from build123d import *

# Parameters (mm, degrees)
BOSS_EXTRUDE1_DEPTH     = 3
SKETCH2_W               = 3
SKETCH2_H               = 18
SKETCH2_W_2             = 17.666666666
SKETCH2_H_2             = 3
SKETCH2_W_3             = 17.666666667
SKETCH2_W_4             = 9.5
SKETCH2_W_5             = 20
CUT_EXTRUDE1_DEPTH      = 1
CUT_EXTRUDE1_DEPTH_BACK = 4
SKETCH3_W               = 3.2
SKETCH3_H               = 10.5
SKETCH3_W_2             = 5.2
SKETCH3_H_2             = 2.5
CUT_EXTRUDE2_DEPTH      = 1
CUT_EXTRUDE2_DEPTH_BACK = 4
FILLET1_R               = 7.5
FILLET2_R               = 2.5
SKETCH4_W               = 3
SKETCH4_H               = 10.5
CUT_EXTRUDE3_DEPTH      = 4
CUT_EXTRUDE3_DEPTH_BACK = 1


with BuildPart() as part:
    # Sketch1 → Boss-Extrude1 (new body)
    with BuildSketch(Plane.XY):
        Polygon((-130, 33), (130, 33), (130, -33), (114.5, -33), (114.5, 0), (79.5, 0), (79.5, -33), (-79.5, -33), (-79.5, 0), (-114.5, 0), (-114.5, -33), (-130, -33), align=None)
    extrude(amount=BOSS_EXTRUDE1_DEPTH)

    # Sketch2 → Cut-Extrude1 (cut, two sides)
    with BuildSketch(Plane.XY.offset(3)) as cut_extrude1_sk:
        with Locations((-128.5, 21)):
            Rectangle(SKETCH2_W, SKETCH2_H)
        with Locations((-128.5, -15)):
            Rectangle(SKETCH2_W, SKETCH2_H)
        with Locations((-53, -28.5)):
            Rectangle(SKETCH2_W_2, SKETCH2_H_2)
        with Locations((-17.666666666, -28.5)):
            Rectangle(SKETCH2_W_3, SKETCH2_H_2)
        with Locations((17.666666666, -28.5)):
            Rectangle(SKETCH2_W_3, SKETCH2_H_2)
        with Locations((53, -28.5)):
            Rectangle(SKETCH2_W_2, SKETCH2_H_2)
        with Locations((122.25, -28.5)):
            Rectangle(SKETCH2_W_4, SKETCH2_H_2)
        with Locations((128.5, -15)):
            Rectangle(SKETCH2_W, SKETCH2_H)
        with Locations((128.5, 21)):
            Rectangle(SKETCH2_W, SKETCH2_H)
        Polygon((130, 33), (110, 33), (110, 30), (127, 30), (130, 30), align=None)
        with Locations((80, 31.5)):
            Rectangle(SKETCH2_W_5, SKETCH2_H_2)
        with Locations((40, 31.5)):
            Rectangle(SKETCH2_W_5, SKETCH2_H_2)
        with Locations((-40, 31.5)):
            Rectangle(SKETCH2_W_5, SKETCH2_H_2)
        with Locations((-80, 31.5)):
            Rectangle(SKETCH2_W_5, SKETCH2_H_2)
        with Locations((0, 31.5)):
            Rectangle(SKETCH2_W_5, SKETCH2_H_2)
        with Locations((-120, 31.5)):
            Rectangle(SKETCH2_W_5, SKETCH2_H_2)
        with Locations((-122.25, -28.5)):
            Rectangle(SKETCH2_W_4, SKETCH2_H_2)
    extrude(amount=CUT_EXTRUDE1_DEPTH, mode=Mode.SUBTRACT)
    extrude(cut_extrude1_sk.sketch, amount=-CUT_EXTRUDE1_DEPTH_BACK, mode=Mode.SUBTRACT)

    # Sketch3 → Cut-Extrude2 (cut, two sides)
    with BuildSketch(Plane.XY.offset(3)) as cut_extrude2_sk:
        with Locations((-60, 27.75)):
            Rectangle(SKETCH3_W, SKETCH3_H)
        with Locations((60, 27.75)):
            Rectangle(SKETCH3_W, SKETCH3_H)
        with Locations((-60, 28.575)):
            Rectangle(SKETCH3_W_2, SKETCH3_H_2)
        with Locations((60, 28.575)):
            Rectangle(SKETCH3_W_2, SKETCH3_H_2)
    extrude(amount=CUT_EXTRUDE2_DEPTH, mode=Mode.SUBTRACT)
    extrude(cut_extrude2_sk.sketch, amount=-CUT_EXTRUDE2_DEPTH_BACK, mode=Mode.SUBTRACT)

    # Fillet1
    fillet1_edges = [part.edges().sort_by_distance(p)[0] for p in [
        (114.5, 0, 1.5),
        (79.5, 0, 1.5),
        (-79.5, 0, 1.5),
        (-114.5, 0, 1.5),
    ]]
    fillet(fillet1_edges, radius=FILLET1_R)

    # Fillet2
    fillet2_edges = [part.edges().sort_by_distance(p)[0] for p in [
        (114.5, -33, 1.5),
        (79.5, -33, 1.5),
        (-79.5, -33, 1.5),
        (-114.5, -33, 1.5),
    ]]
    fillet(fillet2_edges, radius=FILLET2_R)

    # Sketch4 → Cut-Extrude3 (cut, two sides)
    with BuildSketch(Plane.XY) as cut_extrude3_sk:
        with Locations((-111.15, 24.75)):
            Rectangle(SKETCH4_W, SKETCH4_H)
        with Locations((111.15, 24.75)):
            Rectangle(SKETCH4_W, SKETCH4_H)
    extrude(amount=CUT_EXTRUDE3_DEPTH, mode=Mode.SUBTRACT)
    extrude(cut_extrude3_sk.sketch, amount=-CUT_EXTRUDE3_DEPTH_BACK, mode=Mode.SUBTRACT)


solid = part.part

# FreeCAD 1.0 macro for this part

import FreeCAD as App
import Part
import Sketcher
Q = App.Units.Quantity


def edges_at(feature, points):
    """Names of the edges that pass closest to the given points."""
    edges = feature.Shape.Edges
    near = lambda p: min(range(len(edges)), key=lambda i: edges[i].distToShape(Part.Vertex(*p))[0])
    return sorted({f"Edge{near(p) + 1}" for p in points})


def add_polygon(sketch, points):
    """Adds a closed chain of lines whose ends are joined by coincident constraints."""
    first, n = sketch.GeometryCount, len(points)
    for a, b in zip(points, points[1:] + points[:1]):
        sketch.addGeometry(Part.LineSegment(App.Vector(*a, 0), App.Vector(*b, 0)), False)
    for i in range(n):
        sketch.addConstraint(Sketcher.Constraint("Coincident", first + i, 2, first + (i + 1) % n, 1))

doc = App.newDocument("Part")
body = doc.addObject("PartDesign::Body", "Body")

# Sketch on XY plane
sketch1 = doc.addObject("Sketcher::SketchObject", "Sketch")
body.addObject(sketch1)
sketch1.AttachmentSupport = (doc.XY_Plane, [""])
sketch1.MapMode = "FlatFace"
add_polygon(sketch1, [(130, 33), (-130, 33), (-130, -33), (-114, -33), (-114, 0), (-80, 0), (-80, -33), (80, -33), (80, 0), (114, 0), (114, -33), (130, -33)])  # lines 0-11
sketch1.addConstraint([
    Sketcher.Constraint("Horizontal", 0),
    Sketcher.Constraint("Vertical", 1),
    Sketcher.Constraint("Horizontal", 2),
    Sketcher.Constraint("Vertical", 3),
    Sketcher.Constraint("Horizontal", 4),
    Sketcher.Constraint("Vertical", 5),
    Sketcher.Constraint("Horizontal", 6),
    Sketcher.Constraint("Vertical", 7),
    Sketcher.Constraint("Horizontal", 8),
    Sketcher.Constraint("Vertical", 9),
    Sketcher.Constraint("Horizontal", 10),
    Sketcher.Constraint("Vertical", 11),
    Sketcher.Constraint("Symmetric", 4, 2, 7, 2, -1, 1),
    Sketcher.Constraint("Symmetric", 0, 2, 10, 2, -1, 1),
    Sketcher.Constraint("Symmetric", 3, 2, 8, 2, -2),
    Sketcher.Constraint("Horizontal", 2, 2, 5, 2),
    Sketcher.Constraint("Horizontal", 6, 2, 9, 2),
    Sketcher.Constraint("DistanceX", 0, 2, 0, 1, Q("260 mm")),
    Sketcher.Constraint("DistanceX", 4, 1, 4, 2, Q("35 mm")),
    Sketcher.Constraint("DistanceX", 6, 1, 6, 2, Q("159 mm")),
    Sketcher.Constraint("DistanceY", 1, 2, 1, 1, Q("66 mm")),
])
pad1 = doc.addObject("PartDesign::Pad", "Pad")
body.addObject(pad1)
pad1.Profile = sketch1
pad1.Length = 3

# Sketch on XY plane
sketch2 = doc.addObject("Sketcher::SketchObject", "Sketch001")
body.addObject(sketch2)
sketch2.AttachmentSupport = (doc.XY_Plane, [""])
sketch2.MapMode = "FlatFace"
sketch2.AttachmentOffset = App.Placement(App.Vector(0, 0, 3), App.Rotation())
add_polygon(sketch2, [(-130, 12), (-127, 12), (-127, 30), (-110, 30), (-110, 33), (-130, 33)])  # lines 0-5
add_polygon(sketch2, [(-130, -6), (-130, -24), (-127, -24), (-127, -6)])  # lines 6-9
add_polygon(sketch2, [(-61.8, -27), (-61.8, -30), (-44.2, -30), (-44.2, -27)])  # lines 10-13
add_polygon(sketch2, [(-26.5, -27), (-26.5, -30), (-8.8, -30), (-8.8, -27)])  # lines 14-17
add_polygon(sketch2, [(8.8, -27), (8.8, -30), (26.5, -30), (26.5, -27)])  # lines 18-21
add_polygon(sketch2, [(44.2, -27), (44.2, -30), (61.8, -30), (61.8, -27)])  # lines 22-25
add_polygon(sketch2, [(117.5, -27), (117.5, -30), (127, -30), (127, -27)])  # lines 26-29
add_polygon(sketch2, [(127, -6), (127, -24), (130, -24), (130, -6)])  # lines 30-33
add_polygon(sketch2, [(127, 30), (127, 12), (130, 12), (130, 33), (110, 33), (110, 30)])  # lines 34-39
add_polygon(sketch2, [(70, 33), (70, 30), (90, 30), (90, 33)])  # lines 40-43
add_polygon(sketch2, [(30, 33), (30, 30), (50, 30), (50, 33)])  # lines 44-47
add_polygon(sketch2, [(-50, 33), (-50, 30), (-30, 30), (-30, 33)])  # lines 48-51
add_polygon(sketch2, [(-90, 33), (-90, 30), (-70, 30), (-70, 33)])  # lines 52-55
add_polygon(sketch2, [(-10, 33), (-10, 30), (10, 30), (10, 33)])  # lines 56-59
add_polygon(sketch2, [(-127, -27), (-127, -30), (-117.5, -30), (-117.5, -27)])  # lines 60-63
sketch2.addConstraint([
    Sketcher.Constraint("Horizontal", 0),
    Sketcher.Constraint("Vertical", 1),
    Sketcher.Constraint("Horizontal", 2),
    Sketcher.Constraint("Vertical", 3),
    Sketcher.Constraint("Horizontal", 4),
    Sketcher.Constraint("Vertical", 5),
    Sketcher.Constraint("Vertical", 6),
    Sketcher.Constraint("Horizontal", 7),
    Sketcher.Constraint("Vertical", 8),
    Sketcher.Constraint("Horizontal", 9),
    Sketcher.Constraint("Vertical", 10),
    Sketcher.Constraint("Horizontal", 11),
    Sketcher.Constraint("Vertical", 12),
    Sketcher.Constraint("Horizontal", 13),
    Sketcher.Constraint("Vertical", 14),
    Sketcher.Constraint("Horizontal", 15),
    Sketcher.Constraint("Vertical", 16),
    Sketcher.Constraint("Horizontal", 17),
    Sketcher.Constraint("Vertical", 18),
    Sketcher.Constraint("Horizontal", 19),
    Sketcher.Constraint("Vertical", 20),
    Sketcher.Constraint("Horizontal", 21),
    Sketcher.Constraint("Vertical", 22),
    Sketcher.Constraint("Horizontal", 23),
    Sketcher.Constraint("Vertical", 24),
    Sketcher.Constraint("Horizontal", 25),
    Sketcher.Constraint("Vertical", 26),
    Sketcher.Constraint("Horizontal", 27),
    Sketcher.Constraint("Vertical", 28),
    Sketcher.Constraint("Horizontal", 29),
    Sketcher.Constraint("Vertical", 30),
    Sketcher.Constraint("Horizontal", 31),
    Sketcher.Constraint("Vertical", 32),
    Sketcher.Constraint("Horizontal", 33),
    Sketcher.Constraint("Vertical", 34),
    Sketcher.Constraint("Horizontal", 35),
    Sketcher.Constraint("Vertical", 36),
    Sketcher.Constraint("Horizontal", 37),
    Sketcher.Constraint("Vertical", 38),
    Sketcher.Constraint("Horizontal", 39),
    Sketcher.Constraint("Vertical", 40),
    Sketcher.Constraint("Horizontal", 41),
    Sketcher.Constraint("Vertical", 42),
    Sketcher.Constraint("Horizontal", 43),
    Sketcher.Constraint("Vertical", 44),
    Sketcher.Constraint("Horizontal", 45),
    Sketcher.Constraint("Vertical", 46),
    Sketcher.Constraint("Horizontal", 47),
    Sketcher.Constraint("Vertical", 48),
    Sketcher.Constraint("Horizontal", 49),
    Sketcher.Constraint("Vertical", 50),
    Sketcher.Constraint("Horizontal", 51),
    Sketcher.Constraint("Vertical", 52),
    Sketcher.Constraint("Horizontal", 53),
    Sketcher.Constraint("Vertical", 54),
    Sketcher.Constraint("Horizontal", 55),
    Sketcher.Constraint("Vertical", 56),
    Sketcher.Constraint("Horizontal", 57),
    Sketcher.Constraint("Vertical", 58),
    Sketcher.Constraint("Horizontal", 59),
    Sketcher.Constraint("Vertical", 60),
    Sketcher.Constraint("Horizontal", 61),
    Sketcher.Constraint("Vertical", 62),
    Sketcher.Constraint("Horizontal", 63),
    Sketcher.Constraint("Symmetric", 1, 2, 27, 2, -1, 1),
    Sketcher.Constraint("Symmetric", 39, 2, 60, 2, -1, 1),
    Sketcher.Constraint("Symmetric", 15, 2, 18, 2, -2),
    Sketcher.Constraint("Symmetric", 17, 2, 20, 2, -2),
    Sketcher.Constraint("Symmetric", 11, 2, 22, 2, -2),
    Sketcher.Constraint("Symmetric", 13, 2, 24, 2, -2),
    Sketcher.Constraint("Symmetric", 7, 2, 30, 2, -2),
    Sketcher.Constraint("Symmetric", 9, 2, 32, 2, -2),
    Sketcher.Constraint("Symmetric", 0, 2, 34, 2, -2),
    Sketcher.Constraint("Symmetric", 4, 2, 36, 2, -2),
    Sketcher.Constraint("Symmetric", 2, 2, 38, 2, -2),
    Sketcher.Constraint("Symmetric", 45, 2, 48, 2, -2),
    Sketcher.Constraint("Symmetric", 47, 2, 50, 2, -2),
    Sketcher.Constraint("Symmetric", 41, 2, 52, 2, -2),
    Sketcher.Constraint("Symmetric", 43, 2, 54, 2, -2),
    Sketcher.Constraint("Symmetric", 29, 2, 62, 2, -2),
    Sketcher.Constraint("Horizontal", 11, 2, 14, 2),
    Sketcher.Constraint("Horizontal", 13, 2, 16, 2),
    Sketcher.Constraint("Horizontal", 23, 2, 26, 2),
    Sketcher.Constraint("Horizontal", 25, 2, 28, 2),
    Sketcher.Constraint("Horizontal", 39, 2, 40, 2),
    Sketcher.Constraint("Horizontal", 37, 2, 42, 2),
    Sketcher.Constraint("Horizontal", 41, 2, 44, 2),
    Sketcher.Constraint("Horizontal", 43, 2, 46, 2),
    Sketcher.Constraint("Horizontal", 53, 2, 56, 2),
    Sketcher.Constraint("Horizontal", 55, 2, 58, 2),
    Sketcher.Constraint("Vertical", 5, 2, 6, 2),
    Sketcher.Constraint("Vertical", 1, 2, 7, 2),
    Sketcher.Constraint("Equal", 13, 15),
    Sketcher.Constraint("Equal", 37, 41),
    Sketcher.Constraint("Equal", 43, 45),
    Sketcher.Constraint("Equal", 55, 57),
    Sketcher.Constraint("Equal", 35, 3),
    Sketcher.Constraint("Equal", 1, 6),
    Sketcher.Constraint("Equal", 3, 10),
    Sketcher.Constraint("DistanceX", 0, 1, 0, 2, Q("3 mm")),
    Sketcher.Constraint("DistanceX", 2, 1, 2, 2, Q("17 mm")),
    Sketcher.Constraint("DistanceY", 1, 1, 1, 2, Q("18 mm")),
    Sketcher.Constraint("DistanceX", 27, 1, 27, 2, Q("9.5 mm")),
    Sketcher.Constraint("DistanceX", 0, 2, -1, 1, Q("127 mm")),
    Sketcher.Constraint("DistanceY", -1, 1, 0, 2, Q("12 mm")),
    Sketcher.Constraint("DistanceY", 6, 2, -1, 1, Q("24 mm")),
    Sketcher.Constraint("DistanceX", -1, 1, 40, 2, Q("70 mm")),
    Sketcher.Constraint("DistanceX", -1, 1, 44, 2, Q("30 mm")),
    Sketcher.Constraint("DistanceX", 56, 2, -1, 1, Q("10 mm")),
    Sketcher.Constraint("DistanceX", 14, 2, -1, 1, Q("26.5 mm")),
    Sketcher.Constraint("DistanceX", 11, 1, 11, 2, Q("17.666667 mm")),
    Sketcher.Constraint("DistanceX", 10, 2, -1, 1, Q("61.833333 mm")),
])
pocket1 = doc.addObject("PartDesign::Pocket", "Pocket")
body.addObject(pocket1)
pocket1.Profile = sketch2
pocket1.Type = "ThroughAll"
pocket1.Midplane = True

# Sketch on XY plane
sketch3 = doc.addObject("Sketcher::SketchObject", "Sketch002")
body.addObject(sketch3)
sketch3.AttachmentSupport = (doc.XY_Plane, [""])
sketch3.MapMode = "FlatFace"
sketch3.AttachmentOffset = App.Placement(App.Vector(0, 0, 3), App.Rotation())
add_polygon(sketch3, [(-61.6, 27.3), (-61.6, 22.5), (-58.4, 22.5), (-58.4, 27.3), (-57.4, 27.3), (-57.4, 29.8), (-58.4, 29.8), (-58.4, 33), (-61.6, 33), (-61.6, 29.8), (-62.6, 29.8), (-62.6, 27.3)])  # lines 0-11
add_polygon(sketch3, [(58.4, 27.3), (58.4, 22.5), (61.6, 22.5), (61.6, 27.3), (62.6, 27.3), (62.6, 29.8), (61.6, 29.8), (61.6, 33), (58.4, 33), (58.4, 29.8), (57.4, 29.8), (57.4, 27.3)])  # lines 12-23
sketch3.addConstraint([
    Sketcher.Constraint("Vertical", 0),
    Sketcher.Constraint("Horizontal", 1),
    Sketcher.Constraint("Vertical", 2),
    Sketcher.Constraint("Horizontal", 3),
    Sketcher.Constraint("Vertical", 4),
    Sketcher.Constraint("Horizontal", 5),
    Sketcher.Constraint("Vertical", 6),
    Sketcher.Constraint("Horizontal", 7),
    Sketcher.Constraint("Vertical", 8),
    Sketcher.Constraint("Horizontal", 9),
    Sketcher.Constraint("Vertical", 10),
    Sketcher.Constraint("Horizontal", 11),
    Sketcher.Constraint("Vertical", 12),
    Sketcher.Constraint("Horizontal", 13),
    Sketcher.Constraint("Vertical", 14),
    Sketcher.Constraint("Horizontal", 15),
    Sketcher.Constraint("Vertical", 16),
    Sketcher.Constraint("Horizontal", 17),
    Sketcher.Constraint("Vertical", 18),
    Sketcher.Constraint("Horizontal", 19),
    Sketcher.Constraint("Vertical", 20),
    Sketcher.Constraint("Horizontal", 21),
    Sketcher.Constraint("Vertical", 22),
    Sketcher.Constraint("Horizontal", 23),
    Sketcher.Constraint("Symmetric", 1, 2, 12, 2, -2),
    Sketcher.Constraint("Symmetric", 11, 2, 14, 2, -2),
    Sketcher.Constraint("Symmetric", 9, 2, 16, 2, -2),
    Sketcher.Constraint("Symmetric", 7, 2, 18, 2, -2),
    Sketcher.Constraint("Symmetric", 5, 2, 20, 2, -2),
    Sketcher.Constraint("Symmetric", 3, 2, 22, 2, -2),
    Sketcher.Constraint("Horizontal", 5, 2, 8, 2),
    Sketcher.Constraint("Horizontal", 3, 2, 10, 2),
    Sketcher.Constraint("Vertical", 2, 2, 5, 2),
    Sketcher.Constraint("Vertical", 0, 2, 7, 2),
    Sketcher.Constraint("Equal", 5, 9),
    Sketcher.Constraint("DistanceX", 3, 1, 3, 2, Q("1 mm")),
    Sketcher.Constraint("DistanceX", 1, 1, 1, 2, Q("3.2 mm")),
    Sketcher.Constraint("DistanceY", 4, 1, 4, 2, Q("2.5 mm")),
    Sketcher.Constraint("DistanceY", -1, 1, 6, 2, Q("33 mm")),
    Sketcher.Constraint("DistanceX", 3, 2, 13, 2, Q("119 mm")),
    Sketcher.Constraint("DistanceY", -1, 1, 0, 2, Q("22.5 mm")),
    Sketcher.Constraint("DistanceY", 0, 2, 0, 1, Q("4.825 mm")),
])
pocket2 = doc.addObject("PartDesign::Pocket", "Pocket001")
body.addObject(pocket2)
pocket2.Profile = sketch3
pocket2.Type = "ThroughAll"
pocket2.Midplane = True
doc.recompute()

fillet = doc.addObject("PartDesign::Fillet", "Fillet")
body.addObject(fillet)
fillet.Base = (pocket2, edges_at(pocket2, [
    (114.5, 0, 1.5),
    (79.5, 0, 1.5),
    (-79.5, 0, 1.5),
    (-114.5, 0, 1.5),
]))
fillet.Radius = 7.5
doc.recompute()

fillet2 = doc.addObject("PartDesign::Fillet", "Fillet001")
body.addObject(fillet2)
fillet2.Base = (fillet, edges_at(fillet, [
    (114.5, -33, 1.5),
    (79.5, -33, 1.5),
    (-79.5, -33, 1.5),
    (-114.5, -33, 1.5),
]))
fillet2.Radius = 2.5

# Sketch on XY plane
sketch4 = doc.addObject("Sketcher::SketchObject", "Sketch003")
body.addObject(sketch4)
sketch4.AttachmentSupport = (doc.XY_Plane, [""])
sketch4.MapMode = "FlatFace"
add_polygon(sketch4, [(-112.7, 30), (-112.7, 19.5), (-109.7, 19.5), (-109.7, 30)])  # lines 0-3
add_polygon(sketch4, [(109.7, 30), (109.7, 19.5), (112.7, 19.5), (112.7, 30)])  # lines 4-7
sketch4.addConstraint([
    Sketcher.Constraint("Vertical", 0),
    Sketcher.Constraint("Horizontal", 1),
    Sketcher.Constraint("Vertical", 2),
    Sketcher.Constraint("Horizontal", 3),
    Sketcher.Constraint("Vertical", 4),
    Sketcher.Constraint("Horizontal", 5),
    Sketcher.Constraint("Vertical", 6),
    Sketcher.Constraint("Horizontal", 7),
    Sketcher.Constraint("Symmetric", 1, 2, 4, 2, -2),
    Sketcher.Constraint("Symmetric", 3, 2, 6, 2, -2),
    Sketcher.Constraint("DistanceX", 1, 1, 1, 2, Q("3 mm")),
    Sketcher.Constraint("DistanceY", 0, 2, 0, 1, Q("10.5 mm")),
    Sketcher.Constraint("DistanceY", -1, 1, 2, 2, Q("30 mm")),
    Sketcher.Constraint("DistanceX", 1, 2, 4, 2, Q("219.3 mm")),
])
pocket3 = doc.addObject("PartDesign::Pocket", "Pocket002")
body.addObject(pocket3)
pocket3.Profile = sketch4
pocket3.Type = "ThroughAll"
pocket3.Midplane = True

doc.recompute()
